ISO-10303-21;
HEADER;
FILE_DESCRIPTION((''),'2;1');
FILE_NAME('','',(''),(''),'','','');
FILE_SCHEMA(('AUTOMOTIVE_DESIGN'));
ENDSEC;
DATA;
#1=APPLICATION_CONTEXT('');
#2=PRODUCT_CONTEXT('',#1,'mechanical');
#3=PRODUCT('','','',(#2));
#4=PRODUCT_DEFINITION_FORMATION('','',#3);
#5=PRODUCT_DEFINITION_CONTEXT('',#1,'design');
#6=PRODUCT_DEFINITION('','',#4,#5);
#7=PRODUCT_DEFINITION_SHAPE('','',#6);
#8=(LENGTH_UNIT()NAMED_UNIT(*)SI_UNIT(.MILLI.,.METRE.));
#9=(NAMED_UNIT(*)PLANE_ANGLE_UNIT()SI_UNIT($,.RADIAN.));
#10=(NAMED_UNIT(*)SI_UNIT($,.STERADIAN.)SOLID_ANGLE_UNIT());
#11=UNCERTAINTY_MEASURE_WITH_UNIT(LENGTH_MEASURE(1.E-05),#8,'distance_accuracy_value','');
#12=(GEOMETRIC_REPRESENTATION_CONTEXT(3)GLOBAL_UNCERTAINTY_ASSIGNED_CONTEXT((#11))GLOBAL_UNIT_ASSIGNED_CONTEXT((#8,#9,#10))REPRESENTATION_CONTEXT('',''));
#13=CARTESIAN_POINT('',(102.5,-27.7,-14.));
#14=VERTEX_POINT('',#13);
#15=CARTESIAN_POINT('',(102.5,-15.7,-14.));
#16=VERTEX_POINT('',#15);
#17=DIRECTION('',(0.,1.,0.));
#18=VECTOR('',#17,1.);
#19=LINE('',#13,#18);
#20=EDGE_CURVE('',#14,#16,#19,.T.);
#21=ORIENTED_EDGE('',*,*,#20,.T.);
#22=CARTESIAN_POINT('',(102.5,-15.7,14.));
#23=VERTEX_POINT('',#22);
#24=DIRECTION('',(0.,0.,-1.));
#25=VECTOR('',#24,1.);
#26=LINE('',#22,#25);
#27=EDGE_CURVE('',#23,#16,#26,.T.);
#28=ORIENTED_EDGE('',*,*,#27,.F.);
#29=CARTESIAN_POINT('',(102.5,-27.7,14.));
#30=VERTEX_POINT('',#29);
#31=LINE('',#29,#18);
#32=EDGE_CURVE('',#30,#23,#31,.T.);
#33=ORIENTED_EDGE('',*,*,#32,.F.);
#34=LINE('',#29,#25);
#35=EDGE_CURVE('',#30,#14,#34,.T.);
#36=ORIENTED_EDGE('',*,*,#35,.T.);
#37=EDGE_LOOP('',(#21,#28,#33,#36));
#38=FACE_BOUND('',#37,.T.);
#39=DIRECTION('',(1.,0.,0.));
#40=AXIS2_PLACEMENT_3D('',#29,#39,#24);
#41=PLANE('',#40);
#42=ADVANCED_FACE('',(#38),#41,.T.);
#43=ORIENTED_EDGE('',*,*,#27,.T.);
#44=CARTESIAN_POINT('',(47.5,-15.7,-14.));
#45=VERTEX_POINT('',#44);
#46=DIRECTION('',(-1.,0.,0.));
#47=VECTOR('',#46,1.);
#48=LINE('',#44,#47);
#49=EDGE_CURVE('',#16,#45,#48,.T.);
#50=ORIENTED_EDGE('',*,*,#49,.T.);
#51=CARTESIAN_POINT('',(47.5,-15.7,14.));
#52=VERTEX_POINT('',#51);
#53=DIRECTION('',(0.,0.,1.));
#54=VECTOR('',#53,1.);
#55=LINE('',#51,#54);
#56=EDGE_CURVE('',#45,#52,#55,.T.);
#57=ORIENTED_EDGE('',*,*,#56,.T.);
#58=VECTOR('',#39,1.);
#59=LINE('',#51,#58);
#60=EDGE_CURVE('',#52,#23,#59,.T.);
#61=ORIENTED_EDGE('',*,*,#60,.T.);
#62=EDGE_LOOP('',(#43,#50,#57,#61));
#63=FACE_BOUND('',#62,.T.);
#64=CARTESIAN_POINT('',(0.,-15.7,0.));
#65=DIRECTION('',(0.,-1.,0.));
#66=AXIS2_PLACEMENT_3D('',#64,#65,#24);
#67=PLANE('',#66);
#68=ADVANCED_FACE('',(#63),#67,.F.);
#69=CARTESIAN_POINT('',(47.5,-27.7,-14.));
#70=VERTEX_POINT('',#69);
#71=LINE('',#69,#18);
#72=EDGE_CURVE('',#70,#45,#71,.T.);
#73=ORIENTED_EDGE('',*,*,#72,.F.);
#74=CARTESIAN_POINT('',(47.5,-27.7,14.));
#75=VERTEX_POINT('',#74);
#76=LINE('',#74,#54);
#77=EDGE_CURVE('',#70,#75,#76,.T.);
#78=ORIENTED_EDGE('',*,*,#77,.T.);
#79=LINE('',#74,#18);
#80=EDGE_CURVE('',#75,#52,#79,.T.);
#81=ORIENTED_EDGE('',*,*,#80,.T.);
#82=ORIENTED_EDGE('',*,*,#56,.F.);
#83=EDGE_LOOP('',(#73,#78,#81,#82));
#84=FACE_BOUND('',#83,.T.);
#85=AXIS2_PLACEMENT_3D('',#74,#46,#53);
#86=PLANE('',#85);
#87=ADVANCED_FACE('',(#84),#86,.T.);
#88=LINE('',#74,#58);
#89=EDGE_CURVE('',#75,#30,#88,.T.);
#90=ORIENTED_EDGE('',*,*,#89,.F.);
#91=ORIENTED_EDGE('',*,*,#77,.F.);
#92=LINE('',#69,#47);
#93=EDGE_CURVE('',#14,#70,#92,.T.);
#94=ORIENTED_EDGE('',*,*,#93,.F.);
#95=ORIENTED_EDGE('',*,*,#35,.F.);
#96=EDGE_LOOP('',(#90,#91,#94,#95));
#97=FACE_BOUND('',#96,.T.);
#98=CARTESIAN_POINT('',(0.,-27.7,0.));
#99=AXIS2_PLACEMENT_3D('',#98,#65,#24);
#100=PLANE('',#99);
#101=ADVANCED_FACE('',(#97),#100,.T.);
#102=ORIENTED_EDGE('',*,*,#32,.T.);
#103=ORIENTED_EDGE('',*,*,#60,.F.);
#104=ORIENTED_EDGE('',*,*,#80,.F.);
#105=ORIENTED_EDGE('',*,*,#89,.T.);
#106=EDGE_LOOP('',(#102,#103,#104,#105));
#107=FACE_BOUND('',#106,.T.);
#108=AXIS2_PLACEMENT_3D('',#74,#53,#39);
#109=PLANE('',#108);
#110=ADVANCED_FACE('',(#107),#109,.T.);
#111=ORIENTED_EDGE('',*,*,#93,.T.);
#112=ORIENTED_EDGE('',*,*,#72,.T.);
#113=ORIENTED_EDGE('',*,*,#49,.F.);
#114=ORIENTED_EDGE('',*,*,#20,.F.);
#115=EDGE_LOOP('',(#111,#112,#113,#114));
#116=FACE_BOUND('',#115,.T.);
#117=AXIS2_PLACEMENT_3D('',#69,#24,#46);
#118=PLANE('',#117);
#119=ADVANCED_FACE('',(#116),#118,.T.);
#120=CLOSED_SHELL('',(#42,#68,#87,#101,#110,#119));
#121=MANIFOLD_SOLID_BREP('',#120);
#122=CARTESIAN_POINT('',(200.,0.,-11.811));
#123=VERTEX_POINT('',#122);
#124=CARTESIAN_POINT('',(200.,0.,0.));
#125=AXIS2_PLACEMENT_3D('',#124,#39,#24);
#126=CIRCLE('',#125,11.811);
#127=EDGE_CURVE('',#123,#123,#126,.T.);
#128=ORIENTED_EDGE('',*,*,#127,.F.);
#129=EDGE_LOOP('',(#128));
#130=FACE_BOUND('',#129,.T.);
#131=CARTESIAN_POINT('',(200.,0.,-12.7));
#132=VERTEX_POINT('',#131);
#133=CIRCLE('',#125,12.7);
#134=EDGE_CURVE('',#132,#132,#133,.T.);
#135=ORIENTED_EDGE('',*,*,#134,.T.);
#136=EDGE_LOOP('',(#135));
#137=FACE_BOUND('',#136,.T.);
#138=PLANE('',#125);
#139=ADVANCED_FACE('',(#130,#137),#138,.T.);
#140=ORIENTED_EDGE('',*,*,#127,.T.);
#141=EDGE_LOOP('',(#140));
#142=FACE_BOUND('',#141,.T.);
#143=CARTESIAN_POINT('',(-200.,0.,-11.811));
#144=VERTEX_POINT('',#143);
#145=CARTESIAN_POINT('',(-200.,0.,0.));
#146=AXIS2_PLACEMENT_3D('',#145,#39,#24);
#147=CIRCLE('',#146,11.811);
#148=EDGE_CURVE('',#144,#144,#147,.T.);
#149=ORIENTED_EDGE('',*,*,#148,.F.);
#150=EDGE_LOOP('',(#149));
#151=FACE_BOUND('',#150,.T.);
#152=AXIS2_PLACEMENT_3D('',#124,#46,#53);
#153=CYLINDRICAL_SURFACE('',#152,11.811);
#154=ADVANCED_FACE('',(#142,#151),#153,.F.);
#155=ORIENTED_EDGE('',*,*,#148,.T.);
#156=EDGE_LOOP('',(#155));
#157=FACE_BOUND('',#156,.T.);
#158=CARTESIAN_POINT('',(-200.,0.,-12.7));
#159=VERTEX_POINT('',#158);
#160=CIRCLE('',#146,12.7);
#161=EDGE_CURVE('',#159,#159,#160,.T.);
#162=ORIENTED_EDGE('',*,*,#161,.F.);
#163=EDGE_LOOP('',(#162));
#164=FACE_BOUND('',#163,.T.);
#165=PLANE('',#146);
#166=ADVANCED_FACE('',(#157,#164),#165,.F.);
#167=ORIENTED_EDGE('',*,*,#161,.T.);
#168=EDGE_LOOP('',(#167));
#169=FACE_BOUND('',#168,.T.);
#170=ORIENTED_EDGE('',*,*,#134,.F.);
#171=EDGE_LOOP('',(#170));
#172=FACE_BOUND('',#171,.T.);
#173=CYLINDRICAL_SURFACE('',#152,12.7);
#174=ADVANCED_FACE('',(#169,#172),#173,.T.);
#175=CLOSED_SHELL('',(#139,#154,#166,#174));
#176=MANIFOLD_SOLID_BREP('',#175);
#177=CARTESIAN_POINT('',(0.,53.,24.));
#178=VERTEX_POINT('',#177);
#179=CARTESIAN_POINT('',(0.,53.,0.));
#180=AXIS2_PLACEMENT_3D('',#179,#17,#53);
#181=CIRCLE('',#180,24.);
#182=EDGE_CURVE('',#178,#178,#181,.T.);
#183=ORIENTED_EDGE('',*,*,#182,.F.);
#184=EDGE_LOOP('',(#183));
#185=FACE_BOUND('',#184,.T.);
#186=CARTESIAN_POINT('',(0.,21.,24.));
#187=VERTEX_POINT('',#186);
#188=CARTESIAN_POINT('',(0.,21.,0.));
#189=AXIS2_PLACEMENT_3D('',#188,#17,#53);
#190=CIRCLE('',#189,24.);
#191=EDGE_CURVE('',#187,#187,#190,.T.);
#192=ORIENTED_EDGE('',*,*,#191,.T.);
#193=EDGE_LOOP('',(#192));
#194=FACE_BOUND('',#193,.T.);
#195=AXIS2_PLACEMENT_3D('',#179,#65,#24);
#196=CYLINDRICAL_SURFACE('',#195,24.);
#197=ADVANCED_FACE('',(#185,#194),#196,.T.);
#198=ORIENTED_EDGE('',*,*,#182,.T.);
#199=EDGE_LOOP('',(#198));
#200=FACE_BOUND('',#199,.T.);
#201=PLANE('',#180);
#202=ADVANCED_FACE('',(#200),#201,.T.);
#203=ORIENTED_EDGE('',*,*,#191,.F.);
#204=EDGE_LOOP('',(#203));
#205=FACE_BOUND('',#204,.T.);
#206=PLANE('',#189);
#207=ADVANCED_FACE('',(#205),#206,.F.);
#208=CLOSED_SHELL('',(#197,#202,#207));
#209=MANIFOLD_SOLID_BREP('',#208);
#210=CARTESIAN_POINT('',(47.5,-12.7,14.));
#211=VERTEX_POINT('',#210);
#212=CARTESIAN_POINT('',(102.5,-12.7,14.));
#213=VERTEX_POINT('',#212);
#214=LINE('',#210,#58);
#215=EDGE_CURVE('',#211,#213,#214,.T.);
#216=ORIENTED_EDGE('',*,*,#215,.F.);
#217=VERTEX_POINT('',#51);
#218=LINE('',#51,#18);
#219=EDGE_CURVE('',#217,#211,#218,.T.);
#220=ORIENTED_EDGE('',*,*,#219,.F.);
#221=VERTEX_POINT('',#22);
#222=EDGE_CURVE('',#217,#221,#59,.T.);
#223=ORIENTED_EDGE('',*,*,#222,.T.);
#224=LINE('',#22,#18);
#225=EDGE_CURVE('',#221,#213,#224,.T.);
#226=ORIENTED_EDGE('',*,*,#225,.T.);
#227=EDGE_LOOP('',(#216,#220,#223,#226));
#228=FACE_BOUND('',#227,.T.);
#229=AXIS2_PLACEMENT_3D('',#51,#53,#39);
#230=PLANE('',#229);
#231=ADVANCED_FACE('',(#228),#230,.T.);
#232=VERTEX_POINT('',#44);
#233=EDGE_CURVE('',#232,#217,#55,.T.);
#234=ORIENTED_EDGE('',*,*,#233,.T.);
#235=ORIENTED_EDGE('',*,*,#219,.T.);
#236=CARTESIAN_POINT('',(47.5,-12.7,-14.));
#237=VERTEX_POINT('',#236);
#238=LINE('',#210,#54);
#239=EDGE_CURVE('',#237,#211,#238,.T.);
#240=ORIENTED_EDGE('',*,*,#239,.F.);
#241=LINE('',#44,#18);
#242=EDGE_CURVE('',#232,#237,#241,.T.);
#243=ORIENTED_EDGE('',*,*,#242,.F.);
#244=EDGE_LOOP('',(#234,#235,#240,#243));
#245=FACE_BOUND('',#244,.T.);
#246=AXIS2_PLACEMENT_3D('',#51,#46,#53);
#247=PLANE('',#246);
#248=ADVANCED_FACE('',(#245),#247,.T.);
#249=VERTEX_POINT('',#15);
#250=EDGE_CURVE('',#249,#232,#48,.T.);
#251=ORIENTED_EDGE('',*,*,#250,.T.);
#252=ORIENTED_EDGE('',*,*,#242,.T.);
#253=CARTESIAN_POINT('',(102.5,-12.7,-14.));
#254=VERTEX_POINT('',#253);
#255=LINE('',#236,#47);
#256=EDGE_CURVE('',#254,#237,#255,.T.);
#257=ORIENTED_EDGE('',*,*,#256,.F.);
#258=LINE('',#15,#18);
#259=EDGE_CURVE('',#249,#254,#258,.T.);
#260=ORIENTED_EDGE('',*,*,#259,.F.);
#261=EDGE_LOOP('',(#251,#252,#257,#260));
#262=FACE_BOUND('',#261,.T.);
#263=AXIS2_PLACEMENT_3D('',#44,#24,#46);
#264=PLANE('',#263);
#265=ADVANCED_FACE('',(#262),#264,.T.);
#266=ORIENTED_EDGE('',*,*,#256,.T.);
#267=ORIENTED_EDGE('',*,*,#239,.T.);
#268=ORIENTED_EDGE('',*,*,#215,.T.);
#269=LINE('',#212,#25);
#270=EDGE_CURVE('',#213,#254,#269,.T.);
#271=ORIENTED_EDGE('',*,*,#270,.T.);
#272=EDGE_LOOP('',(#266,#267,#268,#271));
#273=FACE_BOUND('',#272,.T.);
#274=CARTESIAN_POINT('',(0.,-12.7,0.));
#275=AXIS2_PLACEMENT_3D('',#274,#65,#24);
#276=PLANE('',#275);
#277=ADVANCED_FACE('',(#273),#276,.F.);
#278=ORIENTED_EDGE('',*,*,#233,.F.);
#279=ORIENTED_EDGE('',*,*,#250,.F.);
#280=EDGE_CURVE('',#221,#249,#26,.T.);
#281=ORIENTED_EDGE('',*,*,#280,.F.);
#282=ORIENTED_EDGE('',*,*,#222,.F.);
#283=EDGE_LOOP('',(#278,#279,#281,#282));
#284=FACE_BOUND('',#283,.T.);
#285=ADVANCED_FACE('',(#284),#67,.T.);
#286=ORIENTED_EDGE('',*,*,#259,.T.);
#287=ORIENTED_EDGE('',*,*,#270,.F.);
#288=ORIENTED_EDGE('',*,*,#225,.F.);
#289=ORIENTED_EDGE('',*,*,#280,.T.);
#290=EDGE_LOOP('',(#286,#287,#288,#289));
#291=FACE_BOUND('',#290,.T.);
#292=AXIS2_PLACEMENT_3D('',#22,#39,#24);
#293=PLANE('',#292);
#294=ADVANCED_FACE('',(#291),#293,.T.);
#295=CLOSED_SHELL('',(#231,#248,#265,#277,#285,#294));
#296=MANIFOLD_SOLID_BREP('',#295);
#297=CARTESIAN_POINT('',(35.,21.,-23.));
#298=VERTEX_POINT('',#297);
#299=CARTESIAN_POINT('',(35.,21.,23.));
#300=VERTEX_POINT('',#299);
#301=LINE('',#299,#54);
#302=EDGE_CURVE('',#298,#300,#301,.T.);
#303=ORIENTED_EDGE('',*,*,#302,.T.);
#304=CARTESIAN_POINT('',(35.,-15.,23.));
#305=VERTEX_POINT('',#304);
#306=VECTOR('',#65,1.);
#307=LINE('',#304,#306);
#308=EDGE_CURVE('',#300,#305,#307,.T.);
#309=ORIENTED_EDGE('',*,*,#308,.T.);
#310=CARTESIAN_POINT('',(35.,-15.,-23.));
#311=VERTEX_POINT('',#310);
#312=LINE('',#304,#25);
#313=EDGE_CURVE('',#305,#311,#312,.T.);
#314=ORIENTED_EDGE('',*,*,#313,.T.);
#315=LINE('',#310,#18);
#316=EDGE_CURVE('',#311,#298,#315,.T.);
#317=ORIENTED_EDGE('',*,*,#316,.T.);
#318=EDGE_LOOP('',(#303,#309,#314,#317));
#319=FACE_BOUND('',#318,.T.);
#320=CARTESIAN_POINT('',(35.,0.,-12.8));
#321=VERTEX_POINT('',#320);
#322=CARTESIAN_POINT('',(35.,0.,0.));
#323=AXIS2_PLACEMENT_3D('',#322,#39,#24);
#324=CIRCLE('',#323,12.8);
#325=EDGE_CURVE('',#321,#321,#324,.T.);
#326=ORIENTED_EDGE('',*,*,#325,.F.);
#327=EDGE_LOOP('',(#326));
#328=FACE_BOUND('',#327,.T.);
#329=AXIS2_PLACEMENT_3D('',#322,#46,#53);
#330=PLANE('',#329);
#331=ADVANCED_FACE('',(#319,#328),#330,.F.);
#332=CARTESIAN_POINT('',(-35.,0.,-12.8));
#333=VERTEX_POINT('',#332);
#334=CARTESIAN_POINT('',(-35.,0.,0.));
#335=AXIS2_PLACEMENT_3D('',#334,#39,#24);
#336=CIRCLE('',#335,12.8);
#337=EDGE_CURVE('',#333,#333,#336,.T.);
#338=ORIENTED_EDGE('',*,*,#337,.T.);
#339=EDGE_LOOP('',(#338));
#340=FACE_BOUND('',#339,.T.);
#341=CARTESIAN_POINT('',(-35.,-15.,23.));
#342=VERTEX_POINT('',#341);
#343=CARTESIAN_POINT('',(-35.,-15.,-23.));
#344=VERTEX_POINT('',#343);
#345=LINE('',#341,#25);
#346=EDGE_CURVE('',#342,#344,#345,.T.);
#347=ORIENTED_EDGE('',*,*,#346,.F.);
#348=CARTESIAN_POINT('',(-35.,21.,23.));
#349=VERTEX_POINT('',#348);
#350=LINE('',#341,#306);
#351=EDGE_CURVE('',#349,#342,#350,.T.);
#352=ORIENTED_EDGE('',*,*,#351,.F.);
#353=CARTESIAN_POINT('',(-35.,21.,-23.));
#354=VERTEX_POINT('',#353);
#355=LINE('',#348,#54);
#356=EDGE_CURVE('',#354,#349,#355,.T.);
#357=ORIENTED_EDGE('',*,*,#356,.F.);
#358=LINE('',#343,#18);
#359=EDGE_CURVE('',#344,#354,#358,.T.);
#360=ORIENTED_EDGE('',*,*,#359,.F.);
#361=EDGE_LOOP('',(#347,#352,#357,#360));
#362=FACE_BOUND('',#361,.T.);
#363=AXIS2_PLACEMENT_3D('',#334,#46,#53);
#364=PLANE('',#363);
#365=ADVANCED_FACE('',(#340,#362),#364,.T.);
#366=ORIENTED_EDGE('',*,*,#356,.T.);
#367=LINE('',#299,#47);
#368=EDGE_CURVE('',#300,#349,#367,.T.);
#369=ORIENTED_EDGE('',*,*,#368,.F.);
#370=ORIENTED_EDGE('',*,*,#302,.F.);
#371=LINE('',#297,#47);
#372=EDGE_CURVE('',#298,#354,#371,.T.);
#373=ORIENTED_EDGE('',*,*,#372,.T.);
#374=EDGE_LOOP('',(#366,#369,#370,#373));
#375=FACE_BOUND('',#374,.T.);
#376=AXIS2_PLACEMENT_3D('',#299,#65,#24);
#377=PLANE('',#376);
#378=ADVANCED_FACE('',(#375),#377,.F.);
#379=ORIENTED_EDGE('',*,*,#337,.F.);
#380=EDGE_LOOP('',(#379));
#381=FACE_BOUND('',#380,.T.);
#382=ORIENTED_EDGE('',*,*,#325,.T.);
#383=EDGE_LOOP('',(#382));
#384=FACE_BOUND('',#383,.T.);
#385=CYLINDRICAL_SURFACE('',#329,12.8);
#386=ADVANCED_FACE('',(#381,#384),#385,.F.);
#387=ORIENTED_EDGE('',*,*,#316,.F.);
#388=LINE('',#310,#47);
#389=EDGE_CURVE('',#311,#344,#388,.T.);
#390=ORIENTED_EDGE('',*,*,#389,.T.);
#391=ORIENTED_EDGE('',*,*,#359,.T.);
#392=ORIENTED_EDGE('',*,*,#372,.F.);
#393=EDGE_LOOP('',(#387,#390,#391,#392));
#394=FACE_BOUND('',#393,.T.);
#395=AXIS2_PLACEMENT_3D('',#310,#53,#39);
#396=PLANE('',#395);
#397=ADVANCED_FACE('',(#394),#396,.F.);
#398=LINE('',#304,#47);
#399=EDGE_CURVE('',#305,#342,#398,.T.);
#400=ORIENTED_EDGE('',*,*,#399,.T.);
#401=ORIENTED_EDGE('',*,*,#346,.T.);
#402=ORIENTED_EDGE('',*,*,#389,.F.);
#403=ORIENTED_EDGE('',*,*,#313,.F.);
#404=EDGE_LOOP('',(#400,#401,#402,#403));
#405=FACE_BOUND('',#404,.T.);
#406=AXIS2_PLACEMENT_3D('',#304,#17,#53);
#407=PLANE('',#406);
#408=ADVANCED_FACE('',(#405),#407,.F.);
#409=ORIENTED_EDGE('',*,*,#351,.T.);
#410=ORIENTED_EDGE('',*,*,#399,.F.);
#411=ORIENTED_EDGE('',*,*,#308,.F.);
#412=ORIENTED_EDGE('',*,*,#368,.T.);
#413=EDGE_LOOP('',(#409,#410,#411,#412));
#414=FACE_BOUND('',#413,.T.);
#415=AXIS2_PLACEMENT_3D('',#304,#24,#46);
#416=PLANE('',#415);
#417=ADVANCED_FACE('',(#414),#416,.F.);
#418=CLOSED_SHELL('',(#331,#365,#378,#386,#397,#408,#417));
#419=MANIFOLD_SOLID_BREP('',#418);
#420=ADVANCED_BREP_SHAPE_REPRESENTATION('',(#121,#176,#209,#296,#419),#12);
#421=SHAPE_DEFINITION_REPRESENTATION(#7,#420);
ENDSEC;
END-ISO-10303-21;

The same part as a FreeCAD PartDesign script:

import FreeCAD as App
import Part
import Sketcher

V = App.Vector


def add_polygon(sketch, points):
    """Adds a closed chain of lines whose ends are joined by coincident constraints."""
    first, n = sketch.GeometryCount, len(points)
    for a, b in zip(points, points[1:] + points[:1]):
        sketch.addGeometry(Part.LineSegment(App.Vector(*a, 0), App.Vector(*b, 0)), False)
    for i in range(n):
        sketch.addConstraint(Sketcher.Constraint("Coincident", first + i, 2, first + (i + 1) % n, 1))

doc = App.newDocument("Part")
body = doc.addObject("PartDesign::Body", "Body")

# Sketch on YZ plane
sketch1 = doc.addObject("Sketcher::SketchObject", "Sketch")
body.addObject(sketch1)
sketch1.AttachmentSupport = (doc.YZ_Plane, [""])
sketch1.MapMode = "FlatFace"
sketch1.addGeometry([
    Part.Circle(V(0, 0, 0), V(0, 0, 1), 13),
    Part.Circle(V(0, 0, 0), V(0, 0, 1), 12),
], False)
sketch1.addConstraint([
    Sketcher.Constraint("Coincident", 0, 3, -1, 1),
    Sketcher.Constraint("Coincident", 1, 3, -1, 1),
    Sketcher.Constraint("Diameter", 0, 25.4),
    Sketcher.Constraint("Diameter", 1, 23.622),
])
pad1 = doc.addObject("PartDesign::Pad", "Pad")
body.addObject(pad1)
pad1.Profile = sketch1
pad1.Length = 400
pad1.Midplane = True
body2 = doc.addObject("PartDesign::Body", "Body001")

# Sketch on YZ plane
sketch2 = doc.addObject("Sketcher::SketchObject", "Sketch001")
body2.addObject(sketch2)
sketch2.AttachmentSupport = (doc.getObject("YZ_Plane001"), [""])
sketch2.MapMode = "FlatFace"
add_polygon(sketch2, [(21, 23), (-15, 23), (-15, -23), (21, -23)])  # lines 0-3
sketch2.addGeometry(Part.Circle(V(0, 0, 0), V(0, 0, 1), 13), False)  # 4
sketch2.addConstraint([
    Sketcher.Constraint("Horizontal", 0),
    Sketcher.Constraint("Vertical", 1),
    Sketcher.Constraint("Horizontal", 2),
    Sketcher.Constraint("Vertical", 3),
    Sketcher.Constraint("Coincident", 4, 3, -1, 1),
    Sketcher.Constraint("Diameter", 4, 25.6),
    Sketcher.Constraint("DistanceX", 0, 2, 0, 1, 36.0),
    Sketcher.Constraint("DistanceY", 1, 2, 1, 1, 46.0),
    Sketcher.Constraint("DistanceX", 0, 2, -1, 1, 15.0),
    Sketcher.Constraint("DistanceY", -1, 1, 0, 2, 23.0),
])
pad2 = doc.addObject("PartDesign::Pad", "Pad001")
body2.addObject(pad2)
pad2.Profile = sketch2
pad2.Length = 70
pad2.Midplane = True
body3 = doc.addObject("PartDesign::Body", "Body002")

# Sketch on XZ plane
sketch3 = doc.addObject("Sketcher::SketchObject", "Sketch002")
body3.addObject(sketch3)
sketch3.AttachmentSupport = (doc.getObject("XZ_Plane002"), [""])
sketch3.MapMode = "FlatFace"
sketch3.AttachmentOffset = App.Placement(V(0, 0, -21), App.Rotation())
sketch3.addGeometry(Part.Circle(V(0, 0, 0), V(0, 0, 1), 24), False)
sketch3.addConstraint([
    Sketcher.Constraint("Coincident", 0, 3, -1, 1),
    Sketcher.Constraint("Diameter", 0, 48.0),
])
pad3 = doc.addObject("PartDesign::Pad", "Pad002")
body3.addObject(pad3)
pad3.Profile = sketch3
pad3.Length = 32
pad3.Reversed = True
body4 = doc.addObject("PartDesign::Body", "Body003")

# Sketch on XZ plane
sketch4 = doc.addObject("Sketcher::SketchObject", "Sketch003")
body4.addObject(sketch4)
sketch4.AttachmentSupport = (doc.getObject("XZ_Plane003"), [""])
sketch4.MapMode = "FlatFace"
sketch4.AttachmentOffset = App.Placement(V(0, 0, 12.7), App.Rotation())
add_polygon(sketch4, [(48, -14), (48, 14), (102, 14), (102, -14)])  # lines 0-3
sketch4.addConstraint([
    Sketcher.Constraint("Vertical", 0),
    Sketcher.Constraint("Horizontal", 1),
    Sketcher.Constraint("Vertical", 2),
    Sketcher.Constraint("Horizontal", 3),
    Sketcher.Constraint("DistanceX", 1, 1, 1, 2, 55.0),
    Sketcher.Constraint("DistanceY", 0, 1, 0, 2, 28.0),
    Sketcher.Constraint("DistanceY", -1, 1, 0, 2, 14.0),
    Sketcher.Constraint("DistanceX", -1, 1, 0, 2, 47.5),
])
pad4 = doc.addObject("PartDesign::Pad", "Pad003")
body4.addObject(pad4)
pad4.Profile = sketch4
pad4.Length = 3
body5 = doc.addObject("PartDesign::Body", "Body004")

# Sketch on XZ plane
sketch5 = doc.addObject("Sketcher::SketchObject", "Sketch004")
body5.addObject(sketch5)
sketch5.AttachmentSupport = (doc.getObject("XZ_Plane004"), [""])
sketch5.MapMode = "FlatFace"
sketch5.AttachmentOffset = App.Placement(V(0, 0, 15.7), App.Rotation())
add_polygon(sketch5, [(48, -14), (48, 14), (102, 14), (102, -14)])  # lines 0-3
sketch5.addConstraint([
    Sketcher.Constraint("Vertical", 0),
    Sketcher.Constraint("Horizontal", 1),
    Sketcher.Constraint("Vertical", 2),
    Sketcher.Constraint("Horizontal", 3),
    Sketcher.Constraint("DistanceX", 1, 1, 1, 2, 55.0),
    Sketcher.Constraint("DistanceY", 0, 1, 0, 2, 28.0),
    Sketcher.Constraint("DistanceY", -1, 1, 0, 2, 14.0),
    Sketcher.Constraint("DistanceX", -1, 1, 0, 2, 47.5),
])
pad5 = doc.addObject("PartDesign::Pad", "Pad004")
body5.addObject(pad5)
pad5.Profile = sketch5
pad5.Length = 12

doc.recompute()
